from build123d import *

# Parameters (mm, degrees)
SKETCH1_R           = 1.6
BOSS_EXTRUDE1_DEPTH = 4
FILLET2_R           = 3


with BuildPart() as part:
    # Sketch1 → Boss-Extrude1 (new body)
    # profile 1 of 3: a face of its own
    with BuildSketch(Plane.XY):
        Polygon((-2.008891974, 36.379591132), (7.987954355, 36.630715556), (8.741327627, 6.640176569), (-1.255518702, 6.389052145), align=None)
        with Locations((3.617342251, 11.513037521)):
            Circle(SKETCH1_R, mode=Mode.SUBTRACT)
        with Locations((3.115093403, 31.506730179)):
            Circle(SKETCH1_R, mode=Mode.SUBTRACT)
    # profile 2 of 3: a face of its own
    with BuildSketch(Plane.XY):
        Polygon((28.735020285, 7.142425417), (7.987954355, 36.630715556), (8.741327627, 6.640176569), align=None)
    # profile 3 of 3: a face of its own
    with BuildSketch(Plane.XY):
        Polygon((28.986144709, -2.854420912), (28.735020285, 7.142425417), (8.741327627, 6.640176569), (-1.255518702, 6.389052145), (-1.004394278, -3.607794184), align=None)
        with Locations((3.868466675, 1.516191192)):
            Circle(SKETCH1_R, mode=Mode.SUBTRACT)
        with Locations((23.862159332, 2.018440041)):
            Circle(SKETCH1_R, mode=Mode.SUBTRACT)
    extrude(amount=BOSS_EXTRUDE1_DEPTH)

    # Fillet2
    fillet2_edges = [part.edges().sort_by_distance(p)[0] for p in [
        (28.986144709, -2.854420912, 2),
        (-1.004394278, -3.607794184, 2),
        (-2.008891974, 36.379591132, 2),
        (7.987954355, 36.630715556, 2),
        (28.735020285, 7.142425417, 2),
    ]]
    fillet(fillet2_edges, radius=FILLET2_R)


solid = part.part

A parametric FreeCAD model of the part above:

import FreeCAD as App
import Part
import Sketcher
from FreeCAD import Vector
Q = App.Units.Quantity


def edges_at(feature, points):
    """Names of the edges that pass closest to the given points."""
    edges = feature.Shape.Edges
    near = lambda p: min(range(len(edges)), key=lambda i: edges[i].distToShape(Part.Vertex(*p))[0])
    return sorted({f"Edge{near(p) + 1}" for p in points})

doc = App.newDocument("Part")
body = doc.addObject("PartDesign::Body", "Body")

# Sketch on XY plane
sketch1 = body.newObject("Sketcher::SketchObject", "Sketch")
sketch1.AttachmentSupport = (doc.getObject("XY_Plane"), [""])
sketch1.MapMode = "FlatFace"
sketch1.addGeometry(Part.LineSegment(Vector(8, 36.6, 0), Vector(-2, 36.4, 0)), False)
sketch1.addGeometry(Part.LineSegment(Vector(-2, 36.4, 0), Vector(-1, -3.6, 0)), False)
sketch1.addGeometry(Part.LineSegment(Vector(-1, -3.6, 0), Vector(29, -2.9, 0)), False)
sketch1.addGeometry(Part.LineSegment(Vector(29, -2.9, 0), Vector(28.7, 7.1, 0)), False)
sketch1.addGeometry(Part.LineSegment(Vector(28.7, 7.1, 0), Vector(8, 36.6, 0)), False)
sketch1.addGeometry(Part.Circle(Vector(3.6, 11.5, 0), Vector(0, 0, 1), 1.6), False)
sketch1.addGeometry(Part.Circle(Vector(3.1, 31.5, 0), Vector(0, 0, 1), 1.6), False)
sketch1.addGeometry(Part.Circle(Vector(3.9, 1.5, 0), Vector(0, 0, 1), 1.6), False)
sketch1.addGeometry(Part.Circle(Vector(23.9, 2, 0), Vector(0, 0, 1), 1.6), False)
sketch1.addConstraint(Sketcher.Constraint("Coincident", 0, 2, 1, 1))
sketch1.addConstraint(Sketcher.Constraint("Coincident", 1, 2, 2, 1))
sketch1.addConstraint(Sketcher.Constraint("Coincident", 2, 2, 3, 1))
sketch1.addConstraint(Sketcher.Constraint("Coincident", 3, 2, 4, 1))
sketch1.addConstraint(Sketcher.Constraint("Coincident", 4, 2, 0, 1))
sketch1.addConstraint(Sketcher.Constraint("Equal", 5, 6))
sketch1.addConstraint(Sketcher.Constraint("Equal", 6, 7))
sketch1.addConstraint(Sketcher.Constraint("Equal", 7, 8))
sketch1.addConstraint(Sketcher.Constraint("Perpendicular", 0, 1))
sketch1.addConstraint(Sketcher.Constraint("Perpendicular", 1, 2))
sketch1.addConstraint(Sketcher.Constraint("Perpendicular", 2, 3))
sketch1.addConstraint(Sketcher.Constraint("Equal", 0, 3))
sketch1.addConstraint(Sketcher.Constraint("Diameter", 5, Q("3.2 mm")))
sketch1.addConstraint(Sketcher.Constraint("Distance", 0, Q("10 mm")))
sketch1.addConstraint(Sketcher.Constraint("Distance", 1, Q("40 mm")))
sketch1.addConstraint(Sketcher.Constraint("Distance", 2, Q("30 mm")))
sketch1.addConstraint(Sketcher.Constraint("DistanceY", 7, 3, 0, 2, Q("34.8634 mm")))
sketch1.addConstraint(Sketcher.Constraint("DistanceY", -1, 1, 6, 3, Q("31.50673 mm")))
sketch1.addConstraint(Sketcher.Constraint("DistanceY", -1, 1, 7, 3, Q("1.516191 mm")))
sketch1.addConstraint(Sketcher.Constraint("DistanceX", -1, 1, 8, 3, Q("23.862159 mm")))
sketch1.addConstraint(Sketcher.Constraint("DistanceY", -1, 1, 8, 3, Q("2.01844 mm")))
sketch1.addConstraint(Sketcher.Constraint("DistanceX", 0, 2, -1, 1, Q("2.008892 mm")))
sketch1.addConstraint(Sketcher.Constraint("DistanceY", 2, 2, -1, 1, Q("2.854421 mm")))
sketch1.addConstraint(Sketcher.Constraint("DistanceX", 6, 3, 5, 3, Q("0.502249 mm")))
sketch1.addConstraint(Sketcher.Constraint("DistanceX", 0, 2, 7, 3, Q("5.877359 mm")))
sketch1.addConstraint(Sketcher.Constraint("DistanceY", 1, 2, 5, 3, Q("15.120832 mm")))
sketch1.addConstraint(Sketcher.Constraint("DistanceX", 6, 3, 2, 2, Q("25.871051 mm")))
pad1 = body.newObject("PartDesign::Pad", "Pad")
pad1.Profile = sketch1
pad1.Length = 4
doc.recompute()

fillet = body.newObject("PartDesign::Fillet", "Fillet")
fillet.Base = (pad1, edges_at(pad1, [
    (28.986, -2.854, 2),
    (-1.004, -3.608, 2),
    (-2.009, 36.38, 2),
    (7.988, 36.631, 2),
    (28.735, 7.142, 2),
]))
fillet.Radius = 3

doc.recompute()
